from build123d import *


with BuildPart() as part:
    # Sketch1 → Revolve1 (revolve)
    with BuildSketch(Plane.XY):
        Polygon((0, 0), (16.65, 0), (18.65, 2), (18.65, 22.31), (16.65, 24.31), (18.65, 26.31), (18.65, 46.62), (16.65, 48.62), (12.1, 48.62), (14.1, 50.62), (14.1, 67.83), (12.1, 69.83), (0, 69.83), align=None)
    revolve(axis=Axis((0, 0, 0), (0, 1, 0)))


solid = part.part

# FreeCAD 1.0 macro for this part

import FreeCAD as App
import Part
import Sketcher
from FreeCAD import Vector

doc = App.newDocument("Part")
body = doc.addObject("PartDesign::Body", "Body")

# Sketch on XY plane
sketch1 = body.newObject("Sketcher::SketchObject", "Sketch")
sketch1.AttachmentSupport = (doc.getObject("XY_Plane"), [""])
sketch1.MapMode = "FlatFace"
sketch1.addGeometry([
    Part.LineSegment(Vector(0, 0, 0), Vector(16.6, 0, 0)),  # 0
    Part.LineSegment(Vector(16.6, 0, 0), Vector(18.6, 2, 0)),  # 1
    Part.LineSegment(Vector(18.6, 2, 0), Vector(18.6, 22.3, 0)),  # 2
    Part.LineSegment(Vector(18.6, 22.3, 0), Vector(16.6, 24.3, 0)),  # 3
    Part.LineSegment(Vector(16.6, 24.3, 0), Vector(18.6, 26.3, 0)),  # 4
    Part.LineSegment(Vector(18.6, 26.3, 0), Vector(18.6, 46.6, 0)),  # 5
    Part.LineSegment(Vector(18.6, 46.6, 0), Vector(16.6, 48.6, 0)),  # 6
    Part.LineSegment(Vector(16.6, 48.6, 0), Vector(12.1, 48.6, 0)),  # 7
    Part.LineSegment(Vector(12.1, 48.6, 0), Vector(14.1, 50.6, 0)),  # 8
    Part.LineSegment(Vector(14.1, 50.6, 0), Vector(14.1, 67.8, 0)),  # 9
    Part.LineSegment(Vector(14.1, 67.8, 0), Vector(12.1, 69.8, 0)),  # 10
    Part.LineSegment(Vector(12.1, 69.8, 0), Vector(0, 69.8, 0)),  # 11
    Part.LineSegment(Vector(0, 69.8, 0), Vector(0, 0, 0)),  # 12
], False)
sketch1.addConstraint([
    Sketcher.Constraint("Coincident", 0, 2, 1, 1),
    Sketcher.Constraint("Coincident", 1, 2, 2, 1),
    Sketcher.Constraint("Coincident", 2, 2, 3, 1),
    Sketcher.Constraint("Coincident", 3, 2, 4, 1),
    Sketcher.Constraint("Coincident", 4, 2, 5, 1),
    Sketcher.Constraint("Coincident", 5, 2, 6, 1),
    Sketcher.Constraint("Coincident", 6, 2, 7, 1),
    Sketcher.Constraint("Coincident", 7, 2, 8, 1),
    Sketcher.Constraint("Coincident", 8, 2, 9, 1),
    Sketcher.Constraint("Coincident", 9, 2, 10, 1),
    Sketcher.Constraint("Coincident", 10, 2, 11, 1),
    Sketcher.Constraint("Coincident", 11, 2, 12, 1),
    Sketcher.Constraint("Coincident", 12, 2, 0, 1),
    Sketcher.Constraint("Horizontal", 0),
    Sketcher.Constraint("Vertical", 2),
    Sketcher.Constraint("Vertical", 5),
    Sketcher.Constraint("Horizontal", 7),
    Sketcher.Constraint("Vertical", 9),
    Sketcher.Constraint("Horizontal", 11),
    Sketcher.Constraint("Vertical", 12),
    Sketcher.Constraint("Coincident", 12, 2, -1, 1),
    Sketcher.Constraint("Perpendicular", 1, 3),
    Sketcher.Constraint("Perpendicular", 3, 4),
    Sketcher.Constraint("Perpendicular", 4, 6),
    Sketcher.Constraint("Perpendicular", 6, 8),
    Sketcher.Constraint("Perpendicular", 8, 10),
    Sketcher.Constraint("Vertical", 0, 2, 3, 2),
    Sketcher.Constraint("Vertical", 2, 2, 4, 2),
    Sketcher.Constraint("Vertical", 3, 2, 6, 2),
    Sketcher.Constraint("Vertical", 7, 2, 10, 2),
    Sketcher.Constraint("Equal", 2, 5),
    Sketcher.Constraint("Equal", 1, 3),
    Sketcher.Constraint("Equal", 6, 8),
    Sketcher.Constraint("DistanceX", 11, 2, 11, 1, 12.1),
    Sketcher.Constraint("DistanceY", -1, 1, 1, 2, 2.0),
    Sketcher.Constraint("DistanceX", 0, 1, 0, 2, 16.65),
    Sketcher.Constraint("DistanceY", 2, 1, 2, 2, 20.31),
    Sketcher.Constraint("DistanceY", 9, 1, 9, 2, 17.21),
])
revolution = body.newObject("PartDesign::Revolution", "Revolution")
revolution.Profile = sketch1
revolution.ReferenceAxis = (sketch1, ["V_Axis"])
revolution.Angle = 360

doc.recompute()
